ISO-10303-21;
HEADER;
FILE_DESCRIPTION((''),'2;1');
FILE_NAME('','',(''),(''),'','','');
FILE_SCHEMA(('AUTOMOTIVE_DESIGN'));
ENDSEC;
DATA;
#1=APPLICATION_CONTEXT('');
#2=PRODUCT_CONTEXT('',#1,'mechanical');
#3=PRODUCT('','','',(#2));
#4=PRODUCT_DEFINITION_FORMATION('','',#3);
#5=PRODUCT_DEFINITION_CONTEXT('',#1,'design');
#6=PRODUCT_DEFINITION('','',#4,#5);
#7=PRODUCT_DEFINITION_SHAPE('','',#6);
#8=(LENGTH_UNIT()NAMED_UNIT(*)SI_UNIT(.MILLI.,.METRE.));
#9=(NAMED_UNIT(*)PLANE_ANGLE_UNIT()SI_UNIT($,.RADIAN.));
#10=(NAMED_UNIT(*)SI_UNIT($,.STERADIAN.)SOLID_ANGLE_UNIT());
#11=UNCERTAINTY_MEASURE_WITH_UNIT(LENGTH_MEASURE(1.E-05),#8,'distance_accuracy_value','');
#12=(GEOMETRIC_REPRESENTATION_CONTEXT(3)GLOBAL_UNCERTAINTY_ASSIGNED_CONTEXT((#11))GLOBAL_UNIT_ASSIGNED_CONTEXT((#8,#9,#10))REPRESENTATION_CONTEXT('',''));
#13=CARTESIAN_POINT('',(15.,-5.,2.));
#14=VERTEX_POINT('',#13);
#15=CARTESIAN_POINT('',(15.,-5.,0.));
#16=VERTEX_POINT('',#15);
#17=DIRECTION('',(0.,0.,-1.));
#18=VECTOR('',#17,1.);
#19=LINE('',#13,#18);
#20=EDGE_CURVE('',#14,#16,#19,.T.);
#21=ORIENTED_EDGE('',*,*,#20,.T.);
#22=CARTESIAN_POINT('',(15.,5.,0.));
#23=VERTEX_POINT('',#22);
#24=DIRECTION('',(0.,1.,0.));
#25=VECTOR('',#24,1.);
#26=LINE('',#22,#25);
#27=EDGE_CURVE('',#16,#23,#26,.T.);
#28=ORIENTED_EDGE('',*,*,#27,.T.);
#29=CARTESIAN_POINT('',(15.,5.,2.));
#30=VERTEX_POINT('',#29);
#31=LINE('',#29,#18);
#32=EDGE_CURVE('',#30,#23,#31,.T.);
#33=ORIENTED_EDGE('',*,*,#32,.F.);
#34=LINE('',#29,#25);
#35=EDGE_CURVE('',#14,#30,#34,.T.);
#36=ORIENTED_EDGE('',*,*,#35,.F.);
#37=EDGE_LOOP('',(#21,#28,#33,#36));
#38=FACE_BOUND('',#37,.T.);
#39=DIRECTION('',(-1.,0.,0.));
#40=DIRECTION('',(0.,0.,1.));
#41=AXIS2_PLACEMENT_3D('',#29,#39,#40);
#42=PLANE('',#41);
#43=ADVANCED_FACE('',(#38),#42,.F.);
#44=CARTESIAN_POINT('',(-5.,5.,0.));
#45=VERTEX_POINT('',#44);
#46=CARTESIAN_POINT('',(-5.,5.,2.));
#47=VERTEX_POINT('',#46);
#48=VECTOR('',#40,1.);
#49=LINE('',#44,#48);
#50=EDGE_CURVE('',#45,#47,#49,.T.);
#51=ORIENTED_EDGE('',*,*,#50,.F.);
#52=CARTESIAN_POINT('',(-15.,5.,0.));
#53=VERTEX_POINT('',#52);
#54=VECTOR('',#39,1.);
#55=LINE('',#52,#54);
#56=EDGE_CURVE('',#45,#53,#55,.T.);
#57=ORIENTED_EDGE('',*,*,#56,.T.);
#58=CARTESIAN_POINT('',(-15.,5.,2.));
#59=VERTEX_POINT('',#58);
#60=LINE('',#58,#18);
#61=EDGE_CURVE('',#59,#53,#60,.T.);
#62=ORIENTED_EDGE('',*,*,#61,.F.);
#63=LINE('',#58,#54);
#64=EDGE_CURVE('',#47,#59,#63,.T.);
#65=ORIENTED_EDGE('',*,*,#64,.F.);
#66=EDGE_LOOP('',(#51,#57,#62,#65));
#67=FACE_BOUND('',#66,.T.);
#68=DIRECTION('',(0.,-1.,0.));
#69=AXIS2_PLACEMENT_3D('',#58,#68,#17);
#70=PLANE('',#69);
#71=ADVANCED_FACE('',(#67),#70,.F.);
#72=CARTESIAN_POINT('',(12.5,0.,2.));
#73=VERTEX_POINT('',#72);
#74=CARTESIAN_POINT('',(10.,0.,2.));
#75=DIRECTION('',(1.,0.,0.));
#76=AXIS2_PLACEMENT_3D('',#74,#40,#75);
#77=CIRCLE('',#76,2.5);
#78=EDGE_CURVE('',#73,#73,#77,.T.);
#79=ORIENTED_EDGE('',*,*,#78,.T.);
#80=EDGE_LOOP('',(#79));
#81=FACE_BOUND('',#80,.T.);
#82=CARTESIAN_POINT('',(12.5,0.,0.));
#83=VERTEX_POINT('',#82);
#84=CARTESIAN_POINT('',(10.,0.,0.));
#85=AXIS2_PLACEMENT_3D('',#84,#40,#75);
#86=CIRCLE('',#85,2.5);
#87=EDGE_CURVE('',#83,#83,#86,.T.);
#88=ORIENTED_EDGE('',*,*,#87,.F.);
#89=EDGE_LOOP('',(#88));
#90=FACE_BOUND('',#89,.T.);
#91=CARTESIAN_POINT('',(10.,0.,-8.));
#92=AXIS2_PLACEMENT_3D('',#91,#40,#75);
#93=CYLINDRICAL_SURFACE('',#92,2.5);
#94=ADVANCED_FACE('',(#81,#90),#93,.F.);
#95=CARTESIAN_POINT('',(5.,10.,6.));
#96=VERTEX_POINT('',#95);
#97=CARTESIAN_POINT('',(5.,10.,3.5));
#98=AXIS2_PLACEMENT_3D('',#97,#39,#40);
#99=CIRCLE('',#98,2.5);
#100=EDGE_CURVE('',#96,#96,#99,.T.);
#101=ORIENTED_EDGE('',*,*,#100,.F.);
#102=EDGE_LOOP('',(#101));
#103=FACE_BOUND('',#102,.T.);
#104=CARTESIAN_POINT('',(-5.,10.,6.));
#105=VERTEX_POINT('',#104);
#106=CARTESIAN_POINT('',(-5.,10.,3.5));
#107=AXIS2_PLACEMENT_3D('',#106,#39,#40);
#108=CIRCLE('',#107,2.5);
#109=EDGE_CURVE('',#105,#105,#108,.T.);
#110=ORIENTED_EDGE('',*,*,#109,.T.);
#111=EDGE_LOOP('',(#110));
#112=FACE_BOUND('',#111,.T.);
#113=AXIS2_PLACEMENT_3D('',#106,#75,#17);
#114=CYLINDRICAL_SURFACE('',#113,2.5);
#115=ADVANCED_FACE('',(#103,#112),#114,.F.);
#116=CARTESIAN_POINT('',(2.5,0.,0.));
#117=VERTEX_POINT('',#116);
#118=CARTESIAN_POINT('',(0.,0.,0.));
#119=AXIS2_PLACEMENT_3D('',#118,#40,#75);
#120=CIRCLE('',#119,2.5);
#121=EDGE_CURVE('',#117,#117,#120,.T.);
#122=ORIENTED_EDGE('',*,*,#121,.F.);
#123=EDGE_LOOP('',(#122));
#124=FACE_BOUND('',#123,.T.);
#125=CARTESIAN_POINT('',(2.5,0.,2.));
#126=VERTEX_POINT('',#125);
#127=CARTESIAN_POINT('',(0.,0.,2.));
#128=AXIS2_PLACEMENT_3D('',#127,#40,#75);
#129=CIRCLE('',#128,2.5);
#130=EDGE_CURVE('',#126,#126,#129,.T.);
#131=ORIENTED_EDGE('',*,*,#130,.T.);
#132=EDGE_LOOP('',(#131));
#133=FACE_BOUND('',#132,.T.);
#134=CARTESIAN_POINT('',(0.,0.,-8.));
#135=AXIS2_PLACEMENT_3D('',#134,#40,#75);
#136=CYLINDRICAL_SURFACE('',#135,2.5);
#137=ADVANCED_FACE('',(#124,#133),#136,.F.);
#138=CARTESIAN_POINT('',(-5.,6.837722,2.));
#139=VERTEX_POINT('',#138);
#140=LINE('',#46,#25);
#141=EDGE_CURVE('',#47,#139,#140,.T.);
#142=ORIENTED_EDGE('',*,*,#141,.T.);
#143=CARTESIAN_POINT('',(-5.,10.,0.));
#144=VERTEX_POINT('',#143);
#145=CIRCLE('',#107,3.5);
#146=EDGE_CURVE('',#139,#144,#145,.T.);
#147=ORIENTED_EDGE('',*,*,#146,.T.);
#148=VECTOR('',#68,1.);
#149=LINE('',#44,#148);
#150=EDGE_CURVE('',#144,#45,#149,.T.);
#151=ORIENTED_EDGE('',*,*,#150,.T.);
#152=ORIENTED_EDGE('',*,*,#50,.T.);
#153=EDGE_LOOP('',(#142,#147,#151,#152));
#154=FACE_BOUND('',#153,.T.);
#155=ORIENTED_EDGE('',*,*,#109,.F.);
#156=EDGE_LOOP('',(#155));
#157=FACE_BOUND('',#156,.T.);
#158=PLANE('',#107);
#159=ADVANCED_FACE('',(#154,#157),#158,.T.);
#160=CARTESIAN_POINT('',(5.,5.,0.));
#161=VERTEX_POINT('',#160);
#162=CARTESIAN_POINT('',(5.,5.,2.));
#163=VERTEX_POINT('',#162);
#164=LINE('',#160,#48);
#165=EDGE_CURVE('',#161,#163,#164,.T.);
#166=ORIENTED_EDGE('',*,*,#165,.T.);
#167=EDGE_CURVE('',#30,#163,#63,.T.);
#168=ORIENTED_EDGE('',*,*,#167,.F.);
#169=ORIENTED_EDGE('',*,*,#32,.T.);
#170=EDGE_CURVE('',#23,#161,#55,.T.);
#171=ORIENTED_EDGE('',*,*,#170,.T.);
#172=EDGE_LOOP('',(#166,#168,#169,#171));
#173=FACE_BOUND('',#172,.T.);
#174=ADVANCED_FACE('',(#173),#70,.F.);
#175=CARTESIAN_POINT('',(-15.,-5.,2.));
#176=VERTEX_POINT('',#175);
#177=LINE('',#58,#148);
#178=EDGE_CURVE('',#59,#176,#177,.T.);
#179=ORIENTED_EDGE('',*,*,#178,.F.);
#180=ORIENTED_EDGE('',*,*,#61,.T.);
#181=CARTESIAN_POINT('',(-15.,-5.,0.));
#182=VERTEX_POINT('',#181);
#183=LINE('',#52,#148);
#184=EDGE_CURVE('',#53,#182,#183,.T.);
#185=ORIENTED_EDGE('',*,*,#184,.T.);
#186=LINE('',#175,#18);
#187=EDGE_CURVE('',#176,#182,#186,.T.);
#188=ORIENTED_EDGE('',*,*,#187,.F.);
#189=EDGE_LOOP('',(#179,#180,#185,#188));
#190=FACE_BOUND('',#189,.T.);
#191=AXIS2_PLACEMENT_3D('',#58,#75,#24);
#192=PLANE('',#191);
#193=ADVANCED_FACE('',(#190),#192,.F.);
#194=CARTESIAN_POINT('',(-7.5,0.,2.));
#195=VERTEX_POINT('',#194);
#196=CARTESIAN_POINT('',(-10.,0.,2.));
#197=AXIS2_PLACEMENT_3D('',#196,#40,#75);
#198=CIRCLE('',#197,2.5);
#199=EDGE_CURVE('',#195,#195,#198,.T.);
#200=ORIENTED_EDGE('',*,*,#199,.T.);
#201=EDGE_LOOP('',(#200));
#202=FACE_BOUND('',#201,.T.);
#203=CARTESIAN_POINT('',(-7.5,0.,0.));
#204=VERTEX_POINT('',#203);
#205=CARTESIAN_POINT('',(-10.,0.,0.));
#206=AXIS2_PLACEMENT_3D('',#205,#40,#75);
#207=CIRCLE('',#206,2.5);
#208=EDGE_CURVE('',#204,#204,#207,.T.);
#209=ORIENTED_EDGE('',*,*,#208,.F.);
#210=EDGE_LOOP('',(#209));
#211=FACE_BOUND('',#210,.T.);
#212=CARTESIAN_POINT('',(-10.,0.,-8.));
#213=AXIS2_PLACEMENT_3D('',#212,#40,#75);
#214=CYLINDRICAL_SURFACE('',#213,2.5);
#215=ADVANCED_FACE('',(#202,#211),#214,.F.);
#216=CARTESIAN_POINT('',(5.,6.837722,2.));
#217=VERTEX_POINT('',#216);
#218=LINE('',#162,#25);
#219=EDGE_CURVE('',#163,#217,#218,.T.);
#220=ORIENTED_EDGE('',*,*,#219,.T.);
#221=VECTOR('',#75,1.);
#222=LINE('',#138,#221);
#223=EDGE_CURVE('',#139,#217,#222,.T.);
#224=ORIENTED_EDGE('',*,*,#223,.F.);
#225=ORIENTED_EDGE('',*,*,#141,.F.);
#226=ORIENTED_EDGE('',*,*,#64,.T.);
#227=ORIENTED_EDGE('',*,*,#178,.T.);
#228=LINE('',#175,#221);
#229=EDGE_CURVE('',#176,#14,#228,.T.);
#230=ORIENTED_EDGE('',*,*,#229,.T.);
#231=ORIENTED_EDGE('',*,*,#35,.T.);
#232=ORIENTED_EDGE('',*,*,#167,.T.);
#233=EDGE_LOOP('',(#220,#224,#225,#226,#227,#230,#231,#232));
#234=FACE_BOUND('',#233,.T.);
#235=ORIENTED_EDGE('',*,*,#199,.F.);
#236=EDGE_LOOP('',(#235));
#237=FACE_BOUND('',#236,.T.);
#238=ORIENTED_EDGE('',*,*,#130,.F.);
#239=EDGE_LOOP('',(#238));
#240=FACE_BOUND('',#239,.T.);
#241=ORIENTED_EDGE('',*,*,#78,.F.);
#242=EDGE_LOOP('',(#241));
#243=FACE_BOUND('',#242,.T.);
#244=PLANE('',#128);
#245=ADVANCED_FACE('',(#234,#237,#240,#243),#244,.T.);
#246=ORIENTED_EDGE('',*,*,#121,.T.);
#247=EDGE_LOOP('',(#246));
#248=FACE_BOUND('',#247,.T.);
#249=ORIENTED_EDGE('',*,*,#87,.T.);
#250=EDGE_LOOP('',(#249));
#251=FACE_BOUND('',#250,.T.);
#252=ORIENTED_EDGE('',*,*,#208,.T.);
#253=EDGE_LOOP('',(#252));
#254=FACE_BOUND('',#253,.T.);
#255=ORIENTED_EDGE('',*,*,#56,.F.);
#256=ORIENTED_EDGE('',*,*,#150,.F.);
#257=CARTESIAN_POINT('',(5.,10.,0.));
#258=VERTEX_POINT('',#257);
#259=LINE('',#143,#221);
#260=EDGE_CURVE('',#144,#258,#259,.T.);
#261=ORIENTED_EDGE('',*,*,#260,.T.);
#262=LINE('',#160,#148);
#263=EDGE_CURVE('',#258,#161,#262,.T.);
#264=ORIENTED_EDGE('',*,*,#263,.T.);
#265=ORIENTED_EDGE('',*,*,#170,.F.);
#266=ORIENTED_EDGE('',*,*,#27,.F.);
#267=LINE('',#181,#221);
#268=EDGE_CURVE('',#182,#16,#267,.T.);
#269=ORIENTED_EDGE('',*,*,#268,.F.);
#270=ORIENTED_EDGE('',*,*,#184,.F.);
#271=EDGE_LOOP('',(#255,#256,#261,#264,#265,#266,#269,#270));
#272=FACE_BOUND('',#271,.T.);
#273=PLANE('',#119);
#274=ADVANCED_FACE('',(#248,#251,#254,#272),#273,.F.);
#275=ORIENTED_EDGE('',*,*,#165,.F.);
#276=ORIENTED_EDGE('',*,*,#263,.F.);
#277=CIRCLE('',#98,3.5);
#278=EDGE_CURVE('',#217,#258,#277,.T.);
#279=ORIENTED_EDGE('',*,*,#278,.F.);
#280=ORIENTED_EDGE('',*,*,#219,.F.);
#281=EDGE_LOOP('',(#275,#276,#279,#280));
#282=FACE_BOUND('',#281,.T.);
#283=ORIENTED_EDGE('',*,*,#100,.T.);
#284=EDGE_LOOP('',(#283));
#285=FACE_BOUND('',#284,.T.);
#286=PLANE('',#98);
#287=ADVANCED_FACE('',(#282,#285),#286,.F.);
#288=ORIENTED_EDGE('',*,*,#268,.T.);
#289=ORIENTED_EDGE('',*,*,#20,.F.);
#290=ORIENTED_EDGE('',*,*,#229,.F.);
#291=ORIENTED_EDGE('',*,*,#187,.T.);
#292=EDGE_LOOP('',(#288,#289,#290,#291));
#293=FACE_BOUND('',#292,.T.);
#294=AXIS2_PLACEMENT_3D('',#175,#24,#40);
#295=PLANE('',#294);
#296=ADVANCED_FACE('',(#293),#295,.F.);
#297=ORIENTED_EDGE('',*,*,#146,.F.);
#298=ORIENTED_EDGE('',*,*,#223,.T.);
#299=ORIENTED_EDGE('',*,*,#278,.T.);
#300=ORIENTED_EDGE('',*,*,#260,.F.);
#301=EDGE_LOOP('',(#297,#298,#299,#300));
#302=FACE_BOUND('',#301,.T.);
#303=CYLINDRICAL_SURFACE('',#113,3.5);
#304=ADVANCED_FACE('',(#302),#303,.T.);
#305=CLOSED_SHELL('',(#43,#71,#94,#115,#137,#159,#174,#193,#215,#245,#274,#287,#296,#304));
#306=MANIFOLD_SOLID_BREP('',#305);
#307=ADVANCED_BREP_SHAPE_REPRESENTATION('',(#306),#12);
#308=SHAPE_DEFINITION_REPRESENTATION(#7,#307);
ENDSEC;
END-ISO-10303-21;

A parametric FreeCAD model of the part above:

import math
import FreeCAD as App
import Part
import Sketcher


def add_polygon(sketch, points):
    """Adds a closed chain of lines whose ends are joined by coincident constraints."""
    first, n = sketch.GeometryCount, len(points)
    for a, b in zip(points, points[1:] + points[:1]):
        sketch.addGeometry(Part.LineSegment(App.Vector(*a, 0), App.Vector(*b, 0)), False)
    for i in range(n):
        sketch.addConstraint(Sketcher.Constraint("Coincident", first + i, 2, first + (i + 1) % n, 1))

doc = App.newDocument("Part")
body = doc.addObject("PartDesign::Body", "Body")

# Sketch on XY plane
sketch1 = body.newObject("Sketcher::SketchObject", "Sketch")
sketch1.AttachmentSupport = (doc.getObject("XY_Plane"), [""])
sketch1.MapMode = "FlatFace"
add_polygon(sketch1, [(-15, 5), (-15, -5), (15, -5), (15, 5)])  # lines 0-3
sketch1.addConstraint(Sketcher.Constraint("Vertical", 0))
sketch1.addConstraint(Sketcher.Constraint("Horizontal", 1))
sketch1.addConstraint(Sketcher.Constraint("Vertical", 2))
sketch1.addConstraint(Sketcher.Constraint("Horizontal", 3))
sketch1.addConstraint(Sketcher.Constraint("Symmetric", 0, 2, 2, 2, -1, 1))
sketch1.addConstraint(Sketcher.Constraint("DistanceX", 1, 1, 1, 2, 30.0))
sketch1.addConstraint(Sketcher.Constraint("DistanceY", 0, 2, 0, 1, 10.0))
pad1 = body.newObject("PartDesign::Pad", "Pad")
pad1.Profile = sketch1
pad1.Length = 2

# Sketch on YZ plane
sketch2 = body.newObject("Sketcher::SketchObject", "Sketch001")
sketch2.AttachmentSupport = (doc.getObject("YZ_Plane"), [""])
sketch2.MapMode = "FlatFace"
sketch2.addGeometry(Part.LineSegment(App.Vector(10, 0, 0), App.Vector(5, 0, 0)), False)
sketch2.addGeometry(Part.LineSegment(App.Vector(5, 0, 0), App.Vector(5, 2, 0)), False)
sketch2.addGeometry(Part.LineSegment(App.Vector(5, 2, 0), App.Vector(6.837722, 2, 0)), False)
sketch2.addGeometry(Part.ArcOfCircle(Part.Circle(App.Vector(10, 3.5, 0), App.Vector(0, 0, 1), 3.5), math.radians(-90), math.radians(205.376934)), False)
sketch2.addGeometry(Part.Circle(App.Vector(10, 3.5, 0), App.Vector(0, 0, 1), 2.5), False)
sketch2.addConstraint(Sketcher.Constraint("Coincident", 0, 2, 1, 1))
sketch2.addConstraint(Sketcher.Constraint("Coincident", 1, 2, 2, 1))
sketch2.addConstraint(Sketcher.Constraint("Coincident", 2, 2, 3, 2))
sketch2.addConstraint(Sketcher.Constraint("Tangent", 3, 1, 0, 1))
sketch2.addConstraint(Sketcher.Constraint("Horizontal", 0))
sketch2.addConstraint(Sketcher.Constraint("Vertical", 1))
sketch2.addConstraint(Sketcher.Constraint("Horizontal", 2))
sketch2.addConstraint(Sketcher.Constraint("Coincident", 4, 3, 3, 3))
sketch2.addConstraint(Sketcher.Constraint("PointOnObject", 0, 2, -1))
sketch2.addConstraint(Sketcher.Constraint("Diameter", 4, 5.0))
sketch2.addConstraint(Sketcher.Constraint("Radius", 3, 3.5))
sketch2.addConstraint(Sketcher.Constraint("DistanceX", 0, 2, 0, 1, 5.0))
sketch2.addConstraint(Sketcher.Constraint("DistanceY", 1, 1, 1, 2, 2.0))
sketch2.addConstraint(Sketcher.Constraint("DistanceX", -1, 1, 3, 3, 10.0))
pad2 = body.newObject("PartDesign::Pad", "Pad001")
pad2.Profile = sketch2
pad2.Type = "TwoLengths"
pad2.Length = 5
pad2.Length2 = 5
pad2.Reversed = True

# Sketch on XY plane
sketch3 = body.newObject("Sketcher::SketchObject", "Sketch002")
sketch3.AttachmentSupport = (doc.getObject("XY_Plane"), [""])
sketch3.MapMode = "FlatFace"
sketch3.AttachmentOffset = App.Placement(App.Vector(0, 0, 2), App.Rotation())
sketch3.addGeometry(Part.Circle(App.Vector(-10, 0, 0), App.Vector(0, 0, 1), 2.5), False)
sketch3.addGeometry(Part.Circle(App.Vector(0, 0, 0), App.Vector(0, 0, 1), 2.5), False)
sketch3.addGeometry(Part.Circle(App.Vector(10, 0, 0), App.Vector(0, 0, 1), 2.5), False)
sketch3.addConstraint(Sketcher.Constraint("Coincident", 1, 3, -1, 1))
sketch3.addConstraint(Sketcher.Constraint("Equal", 0, 1))
sketch3.addConstraint(Sketcher.Constraint("Equal", 1, 2))
sketch3.addConstraint(Sketcher.Constraint("Symmetric", 0, 3, 2, 3, -1, 1))
sketch3.addConstraint(Sketcher.Constraint("PointOnObject", 0, 3, -1))
sketch3.addConstraint(Sketcher.Constraint("Diameter", 0, 5.0))
sketch3.addConstraint(Sketcher.Constraint("DistanceX", 0, 3, -1, 1, 10.0))
pocket1 = body.newObject("PartDesign::Pocket", "Pocket")
pocket1.Profile = sketch3
pocket1.Length = 10

doc.recompute()
